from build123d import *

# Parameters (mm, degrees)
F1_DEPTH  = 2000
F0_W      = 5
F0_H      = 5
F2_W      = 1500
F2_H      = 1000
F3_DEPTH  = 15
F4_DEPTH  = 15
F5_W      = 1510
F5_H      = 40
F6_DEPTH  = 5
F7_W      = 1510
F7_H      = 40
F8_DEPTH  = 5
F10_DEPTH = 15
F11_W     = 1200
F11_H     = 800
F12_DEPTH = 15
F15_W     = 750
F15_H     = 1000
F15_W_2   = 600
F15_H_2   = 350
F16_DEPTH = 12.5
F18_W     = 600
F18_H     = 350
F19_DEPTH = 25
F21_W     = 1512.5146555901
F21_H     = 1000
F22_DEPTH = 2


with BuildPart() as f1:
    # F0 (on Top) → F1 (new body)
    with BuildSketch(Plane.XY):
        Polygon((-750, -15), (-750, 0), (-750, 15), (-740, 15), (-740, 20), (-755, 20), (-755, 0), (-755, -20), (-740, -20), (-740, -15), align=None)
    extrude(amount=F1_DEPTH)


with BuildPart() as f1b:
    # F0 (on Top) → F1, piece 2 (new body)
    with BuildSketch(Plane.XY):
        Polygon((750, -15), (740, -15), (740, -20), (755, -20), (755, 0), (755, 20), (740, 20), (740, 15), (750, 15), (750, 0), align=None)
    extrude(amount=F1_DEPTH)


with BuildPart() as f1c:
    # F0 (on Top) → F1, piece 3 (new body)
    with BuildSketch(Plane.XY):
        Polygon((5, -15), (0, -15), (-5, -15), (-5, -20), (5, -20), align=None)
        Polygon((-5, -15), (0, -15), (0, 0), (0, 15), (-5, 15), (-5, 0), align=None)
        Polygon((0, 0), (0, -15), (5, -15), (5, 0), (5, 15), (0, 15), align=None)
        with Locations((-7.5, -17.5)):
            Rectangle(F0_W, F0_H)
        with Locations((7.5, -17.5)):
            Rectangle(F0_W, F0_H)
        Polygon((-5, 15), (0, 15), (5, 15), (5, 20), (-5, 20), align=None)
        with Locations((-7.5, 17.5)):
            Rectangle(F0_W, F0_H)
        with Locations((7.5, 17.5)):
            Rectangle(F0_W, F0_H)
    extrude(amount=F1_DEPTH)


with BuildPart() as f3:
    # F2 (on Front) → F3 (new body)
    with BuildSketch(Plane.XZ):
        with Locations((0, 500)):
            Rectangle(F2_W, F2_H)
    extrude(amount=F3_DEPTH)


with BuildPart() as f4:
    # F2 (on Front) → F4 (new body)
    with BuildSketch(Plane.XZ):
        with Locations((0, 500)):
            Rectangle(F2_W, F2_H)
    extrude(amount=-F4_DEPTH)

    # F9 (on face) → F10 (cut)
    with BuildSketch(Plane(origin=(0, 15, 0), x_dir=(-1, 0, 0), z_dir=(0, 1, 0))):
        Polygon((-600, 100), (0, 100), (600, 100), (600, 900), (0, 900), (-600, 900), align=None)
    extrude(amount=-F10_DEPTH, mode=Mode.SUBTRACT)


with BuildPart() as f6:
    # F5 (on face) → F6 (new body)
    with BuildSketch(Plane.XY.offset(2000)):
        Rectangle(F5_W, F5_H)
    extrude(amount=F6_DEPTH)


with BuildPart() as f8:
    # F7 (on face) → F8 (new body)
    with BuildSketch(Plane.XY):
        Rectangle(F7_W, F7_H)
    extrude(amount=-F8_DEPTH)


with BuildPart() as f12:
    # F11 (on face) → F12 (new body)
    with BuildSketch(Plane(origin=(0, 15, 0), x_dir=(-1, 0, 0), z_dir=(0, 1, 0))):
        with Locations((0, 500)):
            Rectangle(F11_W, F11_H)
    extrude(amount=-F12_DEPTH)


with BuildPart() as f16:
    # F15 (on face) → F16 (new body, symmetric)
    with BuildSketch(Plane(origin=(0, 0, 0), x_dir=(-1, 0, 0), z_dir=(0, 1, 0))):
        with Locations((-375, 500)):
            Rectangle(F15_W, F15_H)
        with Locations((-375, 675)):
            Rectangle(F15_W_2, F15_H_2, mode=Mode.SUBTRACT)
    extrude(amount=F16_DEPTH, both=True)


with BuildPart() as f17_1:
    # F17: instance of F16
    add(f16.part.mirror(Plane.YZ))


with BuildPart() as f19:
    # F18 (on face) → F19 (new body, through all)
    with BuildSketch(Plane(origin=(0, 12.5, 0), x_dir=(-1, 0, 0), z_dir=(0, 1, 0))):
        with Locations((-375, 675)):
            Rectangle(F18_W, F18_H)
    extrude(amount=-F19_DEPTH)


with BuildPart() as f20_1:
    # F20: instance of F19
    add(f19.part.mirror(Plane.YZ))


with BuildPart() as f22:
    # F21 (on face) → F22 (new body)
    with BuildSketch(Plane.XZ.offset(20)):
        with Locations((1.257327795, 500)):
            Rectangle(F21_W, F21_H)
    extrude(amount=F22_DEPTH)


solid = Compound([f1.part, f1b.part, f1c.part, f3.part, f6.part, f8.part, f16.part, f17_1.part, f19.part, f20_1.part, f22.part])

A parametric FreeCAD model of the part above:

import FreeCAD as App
import Part
import Sketcher
from FreeCAD import Vector


def add_polygon(sketch, points):
    """Adds a closed chain of lines whose ends are joined by coincident constraints."""
    first, n = sketch.GeometryCount, len(points)
    for a, b in zip(points, points[1:] + points[:1]):
        sketch.addGeometry(Part.LineSegment(App.Vector(*a, 0), App.Vector(*b, 0)), False)
    for i in range(n):
        sketch.addConstraint(Sketcher.Constraint("Coincident", first + i, 2, first + (i + 1) % n, 1))

doc = App.newDocument("Part")
body = doc.addObject("PartDesign::Body", "Body")

# Sketch on XY plane
sketch1 = body.newObject("Sketcher::SketchObject", "Sketch")
sketch1.AttachmentSupport = (doc.getObject("XY_Plane"), [""])
sketch1.MapMode = "FlatFace"
add_polygon(sketch1, [(-750, -15), (-750, 15), (-740, 15), (-740, 20), (-755, 20), (-755, -20), (-740, -20), (-740, -15)])  # lines 0-7
sketch1.addConstraint([
    Sketcher.Constraint("Vertical", 0),
    Sketcher.Constraint("Horizontal", 1),
    Sketcher.Constraint("Vertical", 2),
    Sketcher.Constraint("Horizontal", 3),
    Sketcher.Constraint("Vertical", 4),
    Sketcher.Constraint("Horizontal", 5),
    Sketcher.Constraint("Vertical", 6),
    Sketcher.Constraint("Horizontal", 7),
    Sketcher.Constraint("Symmetric", 2, 2, 5, 2, -1),
    Sketcher.Constraint("Equal", 2, 6),
    Sketcher.Constraint("DistanceX", 1, 1, 1, 2, 10.0),
    Sketcher.Constraint("DistanceX", 3, 2, 3, 1, 15.0),
    Sketcher.Constraint("DistanceY", 0, 1, 0, 2, 30.0),
    Sketcher.Constraint("DistanceY", 2, 1, 2, 2, 5.0),
    Sketcher.Constraint("DistanceX", 0, 2, -1, 1, 750.0),
])
pad1 = body.newObject("PartDesign::Pad", "Pad")
pad1.Profile = sketch1
pad1.Length = 2000
body2 = doc.addObject("PartDesign::Body", "Body001")

# Sketch on XY plane
sketch2 = body2.newObject("Sketcher::SketchObject", "Sketch001")
sketch2.AttachmentSupport = (doc.getObject("XY_Plane001"), [""])
sketch2.MapMode = "FlatFace"
add_polygon(sketch2, [(750, -15), (740, -15), (740, -20), (755, -20), (755, 20), (740, 20), (740, 15), (750, 15)])  # lines 0-7
sketch2.addConstraint([
    Sketcher.Constraint("Horizontal", 0),
    Sketcher.Constraint("Vertical", 1),
    Sketcher.Constraint("Horizontal", 2),
    Sketcher.Constraint("Vertical", 3),
    Sketcher.Constraint("Horizontal", 4),
    Sketcher.Constraint("Vertical", 5),
    Sketcher.Constraint("Horizontal", 6),
    Sketcher.Constraint("Vertical", 7),
    Sketcher.Constraint("Symmetric", 1, 2, 4, 2, -1),
    Sketcher.Constraint("Equal", 1, 5),
    Sketcher.Constraint("DistanceX", 0, 2, 0, 1, 10.0),
    Sketcher.Constraint("DistanceX", 2, 1, 2, 2, 15.0),
    Sketcher.Constraint("DistanceY", 1, 2, 1, 1, 5.0),
    Sketcher.Constraint("DistanceY", 3, 1, 3, 2, 40.0),
    Sketcher.Constraint("DistanceX", -1, 1, 0, 2, 740.0),
])
pad2 = body2.newObject("PartDesign::Pad", "Pad001")
pad2.Profile = sketch2
pad2.Length = 2000
body3 = doc.addObject("PartDesign::Body", "Body002")

# Sketch on XY plane
sketch3 = body3.newObject("Sketcher::SketchObject", "Sketch002")
sketch3.AttachmentSupport = (doc.getObject("XY_Plane002"), [""])
sketch3.MapMode = "FlatFace"
add_polygon(sketch3, [(-5, -15), (-10, -15), (-10, -20), (10, -20), (10, -15), (5, -15), (5, 15), (10, 15), (10, 20), (-10, 20), (-10, 15), (-5, 15)])  # lines 0-11
sketch3.addConstraint([
    Sketcher.Constraint("Horizontal", 0),
    Sketcher.Constraint("Vertical", 1),
    Sketcher.Constraint("Horizontal", 2),
    Sketcher.Constraint("Vertical", 3),
    Sketcher.Constraint("Horizontal", 4),
    Sketcher.Constraint("Vertical", 5),
    Sketcher.Constraint("Horizontal", 6),
    Sketcher.Constraint("Vertical", 7),
    Sketcher.Constraint("Horizontal", 8),
    Sketcher.Constraint("Vertical", 9),
    Sketcher.Constraint("Horizontal", 10),
    Sketcher.Constraint("Vertical", 11),
    Sketcher.Constraint("Symmetric", 0, 2, 6, 2, -1, 1),
    Sketcher.Constraint("Symmetric", 2, 2, 8, 2, -1, 1),
    Sketcher.Constraint("Symmetric", 4, 2, 10, 2, -1, 1),
    Sketcher.Constraint("Symmetric", 0, 2, 3, 2, -2),
    Sketcher.Constraint("Equal", 10, 1),
    Sketcher.Constraint("DistanceX", 0, 2, 0, 1, 5.0),
    Sketcher.Constraint("DistanceX", 2, 1, 2, 2, 20.0),
    Sketcher.Constraint("DistanceY", 5, 1, 5, 2, 30.0),
])
pad3 = body3.newObject("PartDesign::Pad", "Pad002")
pad3.Profile = sketch3
pad3.Length = 2000
body4 = doc.addObject("PartDesign::Body", "Body003")

# Sketch on XZ plane
sketch4 = body4.newObject("Sketcher::SketchObject", "Sketch003")
sketch4.AttachmentSupport = (doc.getObject("XZ_Plane003"), [""])
sketch4.MapMode = "FlatFace"
add_polygon(sketch4, [(-750, 1000), (-750, 0), (750, 0), (750, 1000)])  # lines 0-3
sketch4.addConstraint([
    Sketcher.Constraint("Vertical", 0),
    Sketcher.Constraint("Horizontal", 1),
    Sketcher.Constraint("Vertical", 2),
    Sketcher.Constraint("Horizontal", 3),
    Sketcher.Constraint("Symmetric", 0, 2, 1, 2, -1, 1),
    Sketcher.Constraint("DistanceX", 1, 1, 1, 2, 1500.0),
    Sketcher.Constraint("DistanceY", 0, 2, 0, 1, 1000.0),
])
pad4 = body4.newObject("PartDesign::Pad", "Pad003")
pad4.Profile = sketch4
pad4.Length = 15
body5 = doc.addObject("PartDesign::Body", "Body004")

# Sketch on XZ plane
sketch5 = body5.newObject("Sketcher::SketchObject", "Sketch004")
sketch5.AttachmentSupport = (doc.getObject("XZ_Plane004"), [""])
sketch5.MapMode = "FlatFace"
add_polygon(sketch5, [(-750, 1000), (-750, 0), (750, 0), (750, 1000)])  # lines 0-3
sketch5.addConstraint([
    Sketcher.Constraint("Vertical", 0),
    Sketcher.Constraint("Horizontal", 1),
    Sketcher.Constraint("Vertical", 2),
    Sketcher.Constraint("Horizontal", 3),
    Sketcher.Constraint("Symmetric", 0, 2, 1, 2, -1, 1),
    Sketcher.Constraint("DistanceX", 1, 1, 1, 2, 1500.0),
    Sketcher.Constraint("DistanceY", 0, 2, 0, 1, 1000.0),
])
pad5 = body5.newObject("PartDesign::Pad", "Pad004")
pad5.Profile = sketch5
pad5.Length = 15
pad5.Reversed = True

# Sketch on XZ plane
sketch6 = body5.newObject("Sketcher::SketchObject", "Sketch005")
sketch6.AttachmentSupport = (doc.getObject("XZ_Plane004"), [""])
sketch6.MapMode = "FlatFace"
sketch6.AttachmentOffset = App.Placement(Vector(0, 0, -15), App.Rotation())
add_polygon(sketch6, [(600, 100), (-600, 100), (-600, 900), (600, 900)])  # lines 0-3
sketch6.addConstraint([
    Sketcher.Constraint("Horizontal", 0),
    Sketcher.Constraint("Vertical", 1),
    Sketcher.Constraint("Horizontal", 2),
    Sketcher.Constraint("Vertical", 3),
    Sketcher.Constraint("DistanceX", 0, 2, 0, 1, 1200.0),
    Sketcher.Constraint("DistanceY", 1, 1, 1, 2, 800.0),
    Sketcher.Constraint("DistanceX", 0, 2, -1, 1, 600.0),
    Sketcher.Constraint("DistanceY", -1, 1, 0, 2, 100.0),
])
pocket1 = body5.newObject("PartDesign::Pocket", "Pocket")
pocket1.Profile = sketch6
pocket1.Length = 15
pocket1.Reversed = True
body6 = doc.addObject("PartDesign::Body", "Body005")

# Sketch on XY plane
sketch7 = body6.newObject("Sketcher::SketchObject", "Sketch006")
sketch7.AttachmentSupport = (doc.getObject("XY_Plane005"), [""])
sketch7.MapMode = "FlatFace"
sketch7.AttachmentOffset = App.Placement(Vector(0, 0, 2000), App.Rotation())
add_polygon(sketch7, [(-755, 20), (-755, -20), (755, -20), (755, 20)])  # lines 0-3
sketch7.addConstraint([
    Sketcher.Constraint("Vertical", 0),
    Sketcher.Constraint("Horizontal", 1),
    Sketcher.Constraint("Vertical", 2),
    Sketcher.Constraint("Horizontal", 3),
    Sketcher.Constraint("Symmetric", 0, 2, 2, 2, -1, 1),
    Sketcher.Constraint("DistanceX", 1, 1, 1, 2, 1510.0),
    Sketcher.Constraint("DistanceY", 0, 2, 0, 1, 40.0),
])
pad6 = body6.newObject("PartDesign::Pad", "Pad005")
pad6.Profile = sketch7
pad6.Length = 5
body7 = doc.addObject("PartDesign::Body", "Body006")

# Sketch on XY plane
sketch8 = body7.newObject("Sketcher::SketchObject", "Sketch007")
sketch8.AttachmentSupport = (doc.getObject("XY_Plane006"), [""])
sketch8.MapMode = "FlatFace"
add_polygon(sketch8, [(-755, 20), (-755, -20), (755, -20), (755, 20)])  # lines 0-3
sketch8.addConstraint([
    Sketcher.Constraint("Vertical", 0),
    Sketcher.Constraint("Horizontal", 1),
    Sketcher.Constraint("Vertical", 2),
    Sketcher.Constraint("Horizontal", 3),
    Sketcher.Constraint("Symmetric", 0, 2, 2, 2, -1, 1),
    Sketcher.Constraint("DistanceX", 1, 1, 1, 2, 1510.0),
    Sketcher.Constraint("DistanceY", 0, 2, 0, 1, 40.0),
])
pad7 = body7.newObject("PartDesign::Pad", "Pad006")
pad7.Profile = sketch8
pad7.Length = 5
pad7.Reversed = True
body8 = doc.addObject("PartDesign::Body", "Body007")

# Sketch on XZ plane
sketch9 = body8.newObject("Sketcher::SketchObject", "Sketch008")
sketch9.AttachmentSupport = (doc.getObject("XZ_Plane007"), [""])
sketch9.MapMode = "FlatFace"
sketch9.AttachmentOffset = App.Placement(Vector(0, 0, -15), App.Rotation())
add_polygon(sketch9, [(600, 900), (600, 100), (-600, 100), (-600, 900)])  # lines 0-3
sketch9.addConstraint([
    Sketcher.Constraint("Vertical", 0),
    Sketcher.Constraint("Horizontal", 1),
    Sketcher.Constraint("Vertical", 2),
    Sketcher.Constraint("Horizontal", 3),
    Sketcher.Constraint("DistanceX", 1, 2, 1, 1, 1200.0),
    Sketcher.Constraint("DistanceY", 0, 2, 0, 1, 800.0),
    Sketcher.Constraint("DistanceX", -1, 1, 0, 2, 600.0),
    Sketcher.Constraint("DistanceY", -1, 1, 0, 2, 100.0),
])
pad8 = body8.newObject("PartDesign::Pad", "Pad007")
pad8.Profile = sketch9
pad8.Length = 15
body9 = doc.addObject("PartDesign::Body", "Body008")

# Sketch on XZ plane
sketch10 = body9.newObject("Sketcher::SketchObject", "Sketch009")
sketch10.AttachmentSupport = (doc.getObject("XZ_Plane008"), [""])
sketch10.MapMode = "FlatFace"
add_polygon(sketch10, [(750, 1000), (750, 0), (0, 0), (0, 1000)])  # lines 0-3
add_polygon(sketch10, [(75, 500), (675, 500), (675, 850), (75, 850)])  # lines 4-7
sketch10.addConstraint([
    Sketcher.Constraint("Vertical", 0),
    Sketcher.Constraint("Horizontal", 1),
    Sketcher.Constraint("Vertical", 2),
    Sketcher.Constraint("Horizontal", 3),
    Sketcher.Constraint("Horizontal", 4),
    Sketcher.Constraint("Vertical", 5),
    Sketcher.Constraint("Horizontal", 6),
    Sketcher.Constraint("Vertical", 7),
    Sketcher.Constraint("Coincident", 1, 2, -1, 1),
    Sketcher.Constraint("DistanceX", 1, 2, 1, 1, 750.0),
    Sketcher.Constraint("DistanceX", 4, 1, 4, 2, 600.0),
    Sketcher.Constraint("DistanceY", 0, 2, 0, 1, 1000.0),
    Sketcher.Constraint("DistanceY", 5, 1, 5, 2, 350.0),
    Sketcher.Constraint("DistanceX", -1, 1, 4, 2, 675.0),
    Sketcher.Constraint("DistanceY", -1, 1, 4, 2, 500.0),
])
pad9 = body9.newObject("PartDesign::Pad", "Pad008")
pad9.Profile = sketch10
pad9.Length = 25
pad9.Midplane = True
body10 = doc.addObject("PartDesign::Body", "Body009")
doc.recompute()

mirroring = doc.addObject("Part::Mirroring", "Mirroring")
mirroring.Source = body9
mirroring.Base = Vector(0, 0, 0)
mirroring.Normal = Vector(1, 0, 0)
body10.BaseFeature = mirroring
doc.recompute()
body11 = doc.addObject("PartDesign::Body", "Body010")

# Sketch on XZ plane
sketch11 = body11.newObject("Sketcher::SketchObject", "Sketch010")
sketch11.AttachmentSupport = (doc.getObject("XZ_Plane010"), [""])
sketch11.MapMode = "FlatFace"
sketch11.AttachmentOffset = App.Placement(Vector(0, 0, -12.5), App.Rotation())
add_polygon(sketch11, [(675, 850), (675, 500), (75, 500), (75, 850)])  # lines 0-3
sketch11.addConstraint([
    Sketcher.Constraint("Vertical", 0),
    Sketcher.Constraint("Horizontal", 1),
    Sketcher.Constraint("Vertical", 2),
    Sketcher.Constraint("Horizontal", 3),
    Sketcher.Constraint("DistanceX", 1, 2, 1, 1, 600.0),
    Sketcher.Constraint("DistanceY", 0, 2, 0, 1, 350.0),
    Sketcher.Constraint("DistanceX", -1, 1, 0, 2, 675.0),
    Sketcher.Constraint("DistanceY", -1, 1, 0, 2, 500.0),
])
pad10 = body11.newObject("PartDesign::Pad", "Pad009")
pad10.Profile = sketch11
pad10.Length = 25
body12 = doc.addObject("PartDesign::Body", "Body011")
doc.recompute()

mirroring2 = doc.addObject("Part::Mirroring", "Mirroring001")
mirroring2.Source = body11
mirroring2.Base = Vector(0, 0, 0)
mirroring2.Normal = Vector(1, 0, 0)
body12.BaseFeature = mirroring2
doc.recompute()
body13 = doc.addObject("PartDesign::Body", "Body012")

# Sketch on XZ plane
sketch12 = body13.newObject("Sketcher::SketchObject", "Sketch011")
sketch12.AttachmentSupport = (doc.getObject("XZ_Plane012"), [""])
sketch12.MapMode = "FlatFace"
sketch12.AttachmentOffset = App.Placement(Vector(0, 0, 20), App.Rotation())
add_polygon(sketch12, [(-755, 1000), (-755, 0), (758, 0), (758, 1000)])  # lines 0-3
sketch12.addConstraint([
    Sketcher.Constraint("Vertical", 0),
    Sketcher.Constraint("Horizontal", 1),
    Sketcher.Constraint("Vertical", 2),
    Sketcher.Constraint("Horizontal", 3),
    Sketcher.Constraint("PointOnObject", 0, 2, -1),
    Sketcher.Constraint("DistanceY", 0, 2, 0, 1, 1000.0),
    Sketcher.Constraint("DistanceX", 0, 2, -1, 1, 755.0),
    Sketcher.Constraint("DistanceX", 1, 1, 1, 2, 1512.514656),
])
pad11 = body13.newObject("PartDesign::Pad", "Pad010")
pad11.Profile = sketch12
pad11.Length = 2
body5.Visibility = False
body8.Visibility = False
mirroring.Visibility = False
mirroring2.Visibility = False

doc.recompute()
